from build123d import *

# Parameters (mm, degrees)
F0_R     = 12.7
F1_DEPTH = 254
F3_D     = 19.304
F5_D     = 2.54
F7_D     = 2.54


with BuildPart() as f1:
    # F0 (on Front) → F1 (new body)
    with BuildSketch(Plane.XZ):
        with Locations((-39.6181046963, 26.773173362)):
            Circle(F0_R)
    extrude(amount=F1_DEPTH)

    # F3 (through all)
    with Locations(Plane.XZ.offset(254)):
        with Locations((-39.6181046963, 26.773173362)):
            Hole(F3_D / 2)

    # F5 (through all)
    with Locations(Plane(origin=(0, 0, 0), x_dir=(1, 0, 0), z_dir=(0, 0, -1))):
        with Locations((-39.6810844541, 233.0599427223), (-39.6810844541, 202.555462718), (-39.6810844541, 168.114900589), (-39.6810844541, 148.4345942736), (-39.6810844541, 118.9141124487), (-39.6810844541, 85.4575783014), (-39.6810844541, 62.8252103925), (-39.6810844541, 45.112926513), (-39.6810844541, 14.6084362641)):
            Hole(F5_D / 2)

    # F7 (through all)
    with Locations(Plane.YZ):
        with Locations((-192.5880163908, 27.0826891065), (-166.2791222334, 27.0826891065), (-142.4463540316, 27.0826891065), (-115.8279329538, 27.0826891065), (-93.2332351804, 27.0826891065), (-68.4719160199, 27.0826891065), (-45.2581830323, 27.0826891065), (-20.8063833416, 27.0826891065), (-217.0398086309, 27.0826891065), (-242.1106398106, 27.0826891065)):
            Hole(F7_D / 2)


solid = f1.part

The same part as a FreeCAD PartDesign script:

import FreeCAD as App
import Part
import Sketcher
from FreeCAD import Vector
Q = App.Units.Quantity

doc = App.newDocument("Part")
params = doc.addObject("Spreadsheet::Sheet", "Params")
for row, (alias, value) in enumerate([
    ("sketch1_diameter", "1 in"),
    ("pad1_length", "10 in"),
    ("sketch2_diameter", "0.76 in"),
    ("hole_diameter", "0.76 in"),
    ("sketch3_diameter", "0.1 in"),
    ("hole2_diameter", "0.1 in"),
    ("sketch4_diameter", "0.1 in"),
    ("hole3_diameter", "0.1 in"),
], start=1):
    params.set(f"A{row}", alias)
    params.set(f"B{row}", "=" + value)
    params.setAlias(f"B{row}", alias)

body = doc.addObject("PartDesign::Body", "Body")

sketch1 = body.newObject("Sketcher::SketchObject", "Sketch")
sketch1.AttachmentSupport = (doc.getObject("XZ_Plane"), [""])
sketch1.MapMode = "FlatFace"
sketch1.addGeometry(Part.Circle(Vector(-39.618105, 26.773173, 0), Vector(0, 0, 1), 12.7), False)
sketch1.addConstraint([
    Sketcher.Constraint("Diameter", 0, Q("1 in")),
    Sketcher.Constraint("DistanceX", 0, 3, -1, 1, 39.618105),
    Sketcher.Constraint("DistanceY", -1, 1, 0, 3, 26.773173),
])
sketch1.setExpression("Constraints[0]", "Params.sketch1_diameter")
pad1 = body.newObject("PartDesign::Pad", "Pad")
pad1.Profile = sketch1
pad1.setExpression("Length", "Params.pad1_length")

sketch2 = body.newObject("Sketcher::SketchObject", "Sketch001")
sketch2.AttachmentSupport = (doc.getObject("XZ_Plane"), [""])
sketch2.MapMode = "FlatFace"
sketch2.AttachmentOffset = App.Placement(Vector(0, 0, 10 * 25.4), App.Rotation())
sketch2.addGeometry(Part.Circle(Vector(-39.618105, 26.773173, 0), Vector(0, 0, 1), 9.652), False)
sketch2.addConstraint([
    Sketcher.Constraint("Diameter", 0, Q("0.76 in")),
    Sketcher.Constraint("DistanceX", 0, 3, -1, 1, 39.618105),
    Sketcher.Constraint("DistanceY", -1, 1, 0, 3, 26.773173),
])
sketch2.setExpression("Constraints[0]", "Params.sketch2_diameter")
doc.recompute()
hole = body.newObject("PartDesign::Hole", "Hole")
hole.Profile = sketch2
hole.ThreadType = "None"
hole.setExpression("Diameter", "Params.hole_diameter")
hole.DepthType = "ThroughAll"

sketch3 = body.newObject("Sketcher::SketchObject", "Sketch002")
sketch3.AttachmentSupport = (doc.getObject("XY_Plane"), [""])
sketch3.MapMode = "FlatFace"
sketch3.addGeometry([
    Part.Circle(Vector(-39.681084, -233.059943, 0), Vector(0, 0, 1), 1.27),
    Part.Circle(Vector(-39.681084, -202.555463, 0), Vector(0, 0, 1), 1.27),
    Part.Circle(Vector(-39.681084, -168.114901, 0), Vector(0, 0, 1), 1.27),
    Part.Circle(Vector(-39.681084, -148.434594, 0), Vector(0, 0, 1), 1.27),
    Part.Circle(Vector(-39.681084, -118.914112, 0), Vector(0, 0, 1), 1.27),
    Part.Circle(Vector(-39.681084, -85.457578, 0), Vector(0, 0, 1), 1.27),
    Part.Circle(Vector(-39.681084, -62.82521, 0), Vector(0, 0, 1), 1.27),
    Part.Circle(Vector(-39.681084, -45.112927, 0), Vector(0, 0, 1), 1.27),
    Part.Circle(Vector(-39.681084, -14.608436, 0), Vector(0, 0, 1), 1.27),
], False)
sketch3.addConstraint([
    Sketcher.Constraint("Equal", 0, 1),
    Sketcher.Constraint("Equal", 1, 2),
    Sketcher.Constraint("Equal", 2, 3),
    Sketcher.Constraint("Equal", 3, 4),
    Sketcher.Constraint("Equal", 4, 5),
    Sketcher.Constraint("Equal", 5, 6),
    Sketcher.Constraint("Equal", 6, 7),
    Sketcher.Constraint("Equal", 7, 8),
    Sketcher.Constraint("Vertical", 0, 3, 1, 3),
    Sketcher.Constraint("Vertical", 1, 3, 2, 3),
    Sketcher.Constraint("Vertical", 2, 3, 3, 3),
    Sketcher.Constraint("Vertical", 3, 3, 4, 3),
    Sketcher.Constraint("Vertical", 4, 3, 5, 3),
    Sketcher.Constraint("Vertical", 5, 3, 6, 3),
    Sketcher.Constraint("Vertical", 6, 3, 7, 3),
    Sketcher.Constraint("Vertical", 7, 3, 8, 3),
    Sketcher.Constraint("Diameter", 0, Q("0.1 in")),
    Sketcher.Constraint("DistanceY", 2, 3, -1, 1, 168.114901),
    Sketcher.Constraint("DistanceY", 5, 3, -1, 1, 85.457578),
    Sketcher.Constraint("DistanceY", 6, 3, -1, 1, 62.82521),
    Sketcher.Constraint("DistanceY", 0, 3, 1, 3, 30.50448),
    Sketcher.Constraint("DistanceY", 1, 3, 3, 3, 54.120868),
    Sketcher.Constraint("DistanceY", 3, 3, 4, 3, 29.520482),
    Sketcher.Constraint("DistanceY", 2, 3, 4, 3, 49.200788),
    Sketcher.Constraint("DistanceY", 5, 3, 7, 3, 40.344652),
    Sketcher.Constraint("DistanceY", 7, 3, 8, 3, 30.50449),
    Sketcher.Constraint("DistanceX", 0, 3, -1, 1, 39.681084),
])
sketch3.setExpression("Constraints[16]", "Params.sketch3_diameter")
doc.recompute()
hole2 = body.newObject("PartDesign::Hole", "Hole001")
hole2.Profile = sketch3
hole2.ThreadType = "None"
hole2.setExpression("Diameter", "Params.hole2_diameter")
hole2.DepthType = "ThroughAll"
hole2.Reversed = True

sketch4 = body.newObject("Sketcher::SketchObject", "Sketch003")
sketch4.AttachmentSupport = (doc.getObject("YZ_Plane"), [""])
sketch4.MapMode = "FlatFace"
sketch4.addGeometry([
    Part.Circle(Vector(-192.588016, 27.082689, 0), Vector(0, 0, 1), 1.27),
    Part.Circle(Vector(-166.279122, 27.082689, 0), Vector(0, 0, 1), 1.27),
    Part.Circle(Vector(-142.446354, 27.082689, 0), Vector(0, 0, 1), 1.27),
    Part.Circle(Vector(-115.827933, 27.082689, 0), Vector(0, 0, 1), 1.27),
    Part.Circle(Vector(-93.233235, 27.082689, 0), Vector(0, 0, 1), 1.27),
    Part.Circle(Vector(-68.471916, 27.082689, 0), Vector(0, 0, 1), 1.27),
    Part.Circle(Vector(-45.258183, 27.082689, 0), Vector(0, 0, 1), 1.27),
    Part.Circle(Vector(-20.806383, 27.082689, 0), Vector(0, 0, 1), 1.27),
    Part.Circle(Vector(-217.039809, 27.082689, 0), Vector(0, 0, 1), 1.27),
    Part.Circle(Vector(-242.11064, 27.082689, 0), Vector(0, 0, 1), 1.27),
], False)
sketch4.addConstraint([
    Sketcher.Constraint("Equal", 0, 1),
    Sketcher.Constraint("Equal", 1, 2),
    Sketcher.Constraint("Equal", 2, 3),
    Sketcher.Constraint("Equal", 3, 4),
    Sketcher.Constraint("Equal", 4, 5),
    Sketcher.Constraint("Equal", 5, 6),
    Sketcher.Constraint("Equal", 6, 7),
    Sketcher.Constraint("Equal", 7, 8),
    Sketcher.Constraint("Equal", 8, 9),
    Sketcher.Constraint("Horizontal", 0, 3, 1, 3),
    Sketcher.Constraint("Horizontal", 1, 3, 2, 3),
    Sketcher.Constraint("Horizontal", 2, 3, 3, 3),
    Sketcher.Constraint("Horizontal", 3, 3, 4, 3),
    Sketcher.Constraint("Horizontal", 4, 3, 5, 3),
    Sketcher.Constraint("Horizontal", 5, 3, 6, 3),
    Sketcher.Constraint("Horizontal", 6, 3, 7, 3),
    Sketcher.Constraint("Horizontal", 7, 3, 8, 3),
    Sketcher.Constraint("Horizontal", 8, 3, 9, 3),
    Sketcher.Constraint("Diameter", 0, Q("0.1 in")),
    Sketcher.Constraint("DistanceX", 4, 3, -1, 1, Q("3.6705998 in")),
    Sketcher.Constraint("DistanceX", 0, 3, 5, 3, 124.1161),
    Sketcher.Constraint("DistanceX", 6, 3, 7, 3, 24.4518),
    Sketcher.Constraint("DistanceY", -1, 1, 0, 3, 27.082689),
    Sketcher.Constraint("DistanceX", 8, 3, -1, 1, 217.039809),
    Sketcher.Constraint("DistanceX", 9, 3, -1, 1, 242.11064),
    Sketcher.Constraint("DistanceX", 1, 3, 2, 3, 23.832768),
    Sketcher.Constraint("DistanceX", 2, 3, 3, 3, 26.618421),
    Sketcher.Constraint("DistanceX", 2, 3, 4, 3, 49.213119),
    Sketcher.Constraint("DistanceX", 0, 3, 4, 3, 99.354781),
    Sketcher.Constraint("DistanceX", 3, 3, 6, 3, 70.56975),
])
sketch4.setExpression("Constraints[18]", "Params.sketch4_diameter")
doc.recompute()
hole3 = body.newObject("PartDesign::Hole", "Hole002")
hole3.Profile = sketch4
hole3.ThreadType = "None"
hole3.setExpression("Diameter", "Params.hole3_diameter")
hole3.DepthType = "ThroughAll"

doc.recompute()
